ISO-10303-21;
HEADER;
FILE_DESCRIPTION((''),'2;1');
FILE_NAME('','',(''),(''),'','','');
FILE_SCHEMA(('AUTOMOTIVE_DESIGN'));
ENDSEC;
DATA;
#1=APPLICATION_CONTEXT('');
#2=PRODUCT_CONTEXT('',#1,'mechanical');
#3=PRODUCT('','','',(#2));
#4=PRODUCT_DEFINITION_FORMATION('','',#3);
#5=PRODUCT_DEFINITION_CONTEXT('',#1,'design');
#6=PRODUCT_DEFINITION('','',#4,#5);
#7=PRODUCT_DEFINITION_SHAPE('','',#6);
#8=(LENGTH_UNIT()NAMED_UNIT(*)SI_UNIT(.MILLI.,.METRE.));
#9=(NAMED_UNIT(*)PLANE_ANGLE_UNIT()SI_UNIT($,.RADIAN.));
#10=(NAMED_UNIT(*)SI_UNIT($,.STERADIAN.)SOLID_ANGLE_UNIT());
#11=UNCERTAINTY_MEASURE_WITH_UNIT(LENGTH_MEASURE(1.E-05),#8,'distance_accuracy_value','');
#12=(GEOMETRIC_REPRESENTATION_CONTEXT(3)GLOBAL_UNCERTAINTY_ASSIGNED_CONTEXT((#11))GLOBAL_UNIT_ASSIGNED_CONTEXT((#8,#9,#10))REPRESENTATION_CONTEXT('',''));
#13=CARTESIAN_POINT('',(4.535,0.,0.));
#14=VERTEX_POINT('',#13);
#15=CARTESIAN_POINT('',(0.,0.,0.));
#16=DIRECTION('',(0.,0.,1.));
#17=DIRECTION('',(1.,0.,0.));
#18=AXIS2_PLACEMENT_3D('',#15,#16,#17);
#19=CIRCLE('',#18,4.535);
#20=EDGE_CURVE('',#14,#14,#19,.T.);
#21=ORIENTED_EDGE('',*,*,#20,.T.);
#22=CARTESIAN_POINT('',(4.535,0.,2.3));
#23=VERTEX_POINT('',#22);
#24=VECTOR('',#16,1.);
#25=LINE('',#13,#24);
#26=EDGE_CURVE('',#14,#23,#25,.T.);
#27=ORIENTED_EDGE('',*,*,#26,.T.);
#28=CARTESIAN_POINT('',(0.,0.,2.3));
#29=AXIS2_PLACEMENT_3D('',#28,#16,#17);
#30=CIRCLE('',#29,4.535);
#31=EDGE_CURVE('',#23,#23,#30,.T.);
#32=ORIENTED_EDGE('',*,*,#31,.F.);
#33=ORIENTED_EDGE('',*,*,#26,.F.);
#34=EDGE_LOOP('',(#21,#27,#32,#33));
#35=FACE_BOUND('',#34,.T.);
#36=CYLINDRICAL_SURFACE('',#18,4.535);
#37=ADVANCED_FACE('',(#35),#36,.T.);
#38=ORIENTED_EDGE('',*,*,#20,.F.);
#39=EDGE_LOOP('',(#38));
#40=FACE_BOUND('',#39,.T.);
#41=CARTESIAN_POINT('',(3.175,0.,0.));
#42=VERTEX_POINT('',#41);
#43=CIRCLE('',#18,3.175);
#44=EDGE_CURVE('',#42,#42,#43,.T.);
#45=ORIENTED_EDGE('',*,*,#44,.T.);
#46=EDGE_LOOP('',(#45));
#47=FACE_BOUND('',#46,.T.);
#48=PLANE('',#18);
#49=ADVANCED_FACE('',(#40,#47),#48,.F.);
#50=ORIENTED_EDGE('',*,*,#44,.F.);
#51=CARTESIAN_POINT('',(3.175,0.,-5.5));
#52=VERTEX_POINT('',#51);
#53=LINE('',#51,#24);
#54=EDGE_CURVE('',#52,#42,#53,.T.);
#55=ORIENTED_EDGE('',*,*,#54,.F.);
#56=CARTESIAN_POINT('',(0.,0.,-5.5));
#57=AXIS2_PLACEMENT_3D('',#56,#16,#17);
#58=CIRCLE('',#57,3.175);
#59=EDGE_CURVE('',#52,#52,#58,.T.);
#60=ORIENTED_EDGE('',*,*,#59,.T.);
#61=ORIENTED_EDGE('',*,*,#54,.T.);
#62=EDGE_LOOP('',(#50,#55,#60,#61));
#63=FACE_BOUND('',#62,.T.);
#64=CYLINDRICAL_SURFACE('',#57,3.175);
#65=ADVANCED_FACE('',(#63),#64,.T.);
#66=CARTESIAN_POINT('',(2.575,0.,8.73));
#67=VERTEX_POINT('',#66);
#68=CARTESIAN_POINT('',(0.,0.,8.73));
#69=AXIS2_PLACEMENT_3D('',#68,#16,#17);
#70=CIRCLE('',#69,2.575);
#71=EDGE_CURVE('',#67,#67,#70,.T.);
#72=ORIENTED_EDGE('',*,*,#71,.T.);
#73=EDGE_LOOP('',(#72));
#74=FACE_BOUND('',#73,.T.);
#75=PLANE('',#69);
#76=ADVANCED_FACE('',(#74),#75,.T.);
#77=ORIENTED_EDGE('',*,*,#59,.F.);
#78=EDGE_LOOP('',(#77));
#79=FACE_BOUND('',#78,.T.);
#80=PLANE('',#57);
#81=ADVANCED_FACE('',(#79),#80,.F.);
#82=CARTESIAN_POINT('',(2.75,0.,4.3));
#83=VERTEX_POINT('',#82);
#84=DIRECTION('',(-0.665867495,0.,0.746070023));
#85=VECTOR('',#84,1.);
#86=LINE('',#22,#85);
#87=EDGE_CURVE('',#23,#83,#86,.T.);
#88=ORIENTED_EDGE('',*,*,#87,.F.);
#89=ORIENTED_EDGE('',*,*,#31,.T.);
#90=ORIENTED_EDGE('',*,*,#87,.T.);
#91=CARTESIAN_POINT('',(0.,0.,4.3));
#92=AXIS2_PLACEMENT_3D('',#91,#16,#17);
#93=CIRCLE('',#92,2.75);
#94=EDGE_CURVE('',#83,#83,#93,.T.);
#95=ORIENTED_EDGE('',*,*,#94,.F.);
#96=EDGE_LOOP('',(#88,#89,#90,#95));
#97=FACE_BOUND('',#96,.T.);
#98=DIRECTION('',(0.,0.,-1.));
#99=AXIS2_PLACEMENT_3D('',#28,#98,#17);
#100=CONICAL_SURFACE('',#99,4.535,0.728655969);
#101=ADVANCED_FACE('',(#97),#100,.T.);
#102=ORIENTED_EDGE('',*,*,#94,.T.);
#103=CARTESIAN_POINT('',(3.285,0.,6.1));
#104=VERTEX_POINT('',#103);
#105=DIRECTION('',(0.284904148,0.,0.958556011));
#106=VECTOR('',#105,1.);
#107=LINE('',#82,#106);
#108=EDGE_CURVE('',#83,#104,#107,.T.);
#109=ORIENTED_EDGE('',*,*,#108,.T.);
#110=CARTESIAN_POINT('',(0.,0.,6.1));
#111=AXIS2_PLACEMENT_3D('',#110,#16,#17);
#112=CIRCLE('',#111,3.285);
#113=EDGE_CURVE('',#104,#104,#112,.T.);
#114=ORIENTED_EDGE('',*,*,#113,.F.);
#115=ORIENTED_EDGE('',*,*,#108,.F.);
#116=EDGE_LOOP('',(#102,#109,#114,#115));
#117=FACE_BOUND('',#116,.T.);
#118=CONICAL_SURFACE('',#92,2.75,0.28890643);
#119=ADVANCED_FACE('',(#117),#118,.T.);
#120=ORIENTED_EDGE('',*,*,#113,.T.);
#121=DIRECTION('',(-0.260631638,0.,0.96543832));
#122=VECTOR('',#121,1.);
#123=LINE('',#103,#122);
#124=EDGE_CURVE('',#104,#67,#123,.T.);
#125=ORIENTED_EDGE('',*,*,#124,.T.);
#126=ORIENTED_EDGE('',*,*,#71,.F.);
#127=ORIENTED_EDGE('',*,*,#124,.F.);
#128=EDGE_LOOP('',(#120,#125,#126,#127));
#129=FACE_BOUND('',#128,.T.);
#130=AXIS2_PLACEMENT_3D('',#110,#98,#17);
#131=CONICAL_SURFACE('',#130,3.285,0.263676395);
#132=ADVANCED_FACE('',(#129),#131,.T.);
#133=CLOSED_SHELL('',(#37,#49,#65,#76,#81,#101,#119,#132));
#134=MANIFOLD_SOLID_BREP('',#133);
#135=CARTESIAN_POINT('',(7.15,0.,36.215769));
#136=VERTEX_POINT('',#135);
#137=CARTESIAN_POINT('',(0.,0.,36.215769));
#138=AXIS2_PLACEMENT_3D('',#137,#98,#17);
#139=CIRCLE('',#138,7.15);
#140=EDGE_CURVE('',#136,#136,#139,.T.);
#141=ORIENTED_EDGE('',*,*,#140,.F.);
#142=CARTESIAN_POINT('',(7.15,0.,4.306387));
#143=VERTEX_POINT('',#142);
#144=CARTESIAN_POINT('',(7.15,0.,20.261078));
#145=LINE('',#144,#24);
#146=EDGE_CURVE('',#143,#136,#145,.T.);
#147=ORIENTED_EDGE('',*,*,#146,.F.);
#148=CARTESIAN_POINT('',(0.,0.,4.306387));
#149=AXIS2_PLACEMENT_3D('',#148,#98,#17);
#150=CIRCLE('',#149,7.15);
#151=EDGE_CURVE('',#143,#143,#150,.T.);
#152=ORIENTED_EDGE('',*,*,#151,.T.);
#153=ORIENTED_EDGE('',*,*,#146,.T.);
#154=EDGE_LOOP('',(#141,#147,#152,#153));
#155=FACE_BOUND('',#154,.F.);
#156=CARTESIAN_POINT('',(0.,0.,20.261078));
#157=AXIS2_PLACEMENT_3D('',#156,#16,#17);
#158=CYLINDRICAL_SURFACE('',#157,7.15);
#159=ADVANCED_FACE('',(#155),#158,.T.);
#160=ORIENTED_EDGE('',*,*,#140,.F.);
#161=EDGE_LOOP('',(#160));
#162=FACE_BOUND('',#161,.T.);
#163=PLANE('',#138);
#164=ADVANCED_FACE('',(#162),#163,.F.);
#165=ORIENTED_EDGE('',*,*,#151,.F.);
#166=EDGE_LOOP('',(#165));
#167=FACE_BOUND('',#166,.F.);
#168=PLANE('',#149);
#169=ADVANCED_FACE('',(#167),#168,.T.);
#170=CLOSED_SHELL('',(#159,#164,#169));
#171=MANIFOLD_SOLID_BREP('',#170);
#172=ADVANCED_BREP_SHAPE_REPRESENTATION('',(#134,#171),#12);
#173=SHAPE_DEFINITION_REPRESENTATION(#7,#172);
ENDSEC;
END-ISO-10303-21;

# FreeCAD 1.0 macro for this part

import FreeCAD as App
import Part
import Sketcher

doc = App.newDocument("Part")
body = doc.addObject("PartDesign::Body", "Body")

sketch1 = body.newObject("Sketcher::SketchObject", "Sketch")
sketch1.AttachmentSupport = (doc.getObject("XZ_Plane"), [""])
sketch1.MapMode = "FlatFace"
sketch1.addGeometry([
    Part.LineSegment(App.Vector(2.575, 8.73, 0), App.Vector(0, 8.73, 0)),
    Part.LineSegment(App.Vector(0, 8.73, 0), App.Vector(0, -5.5, 0)),
    Part.LineSegment(App.Vector(0, -5.5, 0), App.Vector(3.175, -5.5, 0)),
    Part.LineSegment(App.Vector(3.175, -5.5, 0), App.Vector(3.175, 0, 0)),
    Part.LineSegment(App.Vector(3.175, 0, 0), App.Vector(4.535, 0, 0)),
    Part.LineSegment(App.Vector(4.535, 0, 0), App.Vector(4.535, 2.3, 0)),
    Part.LineSegment(App.Vector(4.535, 2.3, 0), App.Vector(2.75, 4.3, 0)),
    Part.LineSegment(App.Vector(2.75, 4.3, 0), App.Vector(3.285, 6.1, 0)),
    Part.LineSegment(App.Vector(3.285, 6.1, 0), App.Vector(2.575, 8.73, 0)),
], False)
sketch1.addConstraint([
    Sketcher.Constraint("Coincident", 0, 2, 1, 1),
    Sketcher.Constraint("Coincident", 1, 2, 2, 1),
    Sketcher.Constraint("Coincident", 2, 2, 3, 1),
    Sketcher.Constraint("Coincident", 3, 2, 4, 1),
    Sketcher.Constraint("Coincident", 4, 2, 5, 1),
    Sketcher.Constraint("Coincident", 5, 2, 6, 1),
    Sketcher.Constraint("Coincident", 6, 2, 7, 1),
    Sketcher.Constraint("Coincident", 7, 2, 8, 1),
    Sketcher.Constraint("Coincident", 8, 2, 0, 1),
    Sketcher.Constraint("Horizontal", 0),
    Sketcher.Constraint("Vertical", 1),
    Sketcher.Constraint("Horizontal", 2),
    Sketcher.Constraint("Vertical", 3),
    Sketcher.Constraint("Horizontal", 4),
    Sketcher.Constraint("Vertical", 5),
    Sketcher.Constraint("PointOnObject", 0, 2, -2),
    Sketcher.Constraint("PointOnObject", 3, 2, -1),
    Sketcher.Constraint("DistanceY", 3, 1, 3, 2, 5.5),
    Sketcher.Constraint("DistanceY", 5, 1, 5, 2, 2.3),
    Sketcher.Constraint("DistanceY", 5, 2, 6, 2, 2.0),
    Sketcher.Constraint("DistanceX", 4, 1, 4, 2, 1.36),
    Sketcher.Constraint("DistanceY", 1, 2, 1, 1, 14.23),
    Sketcher.Constraint("DistanceY", -1, 1, 7, 2, 6.1),
    Sketcher.Constraint("DistanceX", 8, 2, 3, 2, 0.6),
    Sketcher.Constraint("DistanceX", 0, 2, 0, 1, 2.575),
    Sketcher.Constraint("DistanceX", -1, 1, 6, 2, 2.75),
    Sketcher.Constraint("DistanceX", 7, 2, 5, 2, 1.25),
])
revolution = body.newObject("PartDesign::Revolution", "Revolution")
revolution.Profile = sketch1
revolution.ReferenceAxis = (sketch1, ["V_Axis"])
revolution.Angle = 360
body2 = doc.addObject("PartDesign::Body", "Body001")

sketch2 = body2.newObject("Sketcher::SketchObject", "Sketch001")
sketch2.AttachmentSupport = (doc.getObject("XZ_Plane001"), [""])
sketch2.MapMode = "FlatFace"
sketch2.addGeometry([
    Part.LineSegment(App.Vector(0, 36.215769, 0), App.Vector(0, 4.306387, 0)),
    Part.LineSegment(App.Vector(0, 4.306387, 0), App.Vector(7.15, 4.306387, 0)),
    Part.LineSegment(App.Vector(7.15, 4.306387, 0), App.Vector(7.15, 36.215769, 0)),
    Part.LineSegment(App.Vector(7.15, 36.215769, 0), App.Vector(0, 36.215769, 0)),
], False)
sketch2.addConstraint([
    Sketcher.Constraint("Coincident", 0, 2, 1, 1),
    Sketcher.Constraint("Coincident", 1, 2, 2, 1),
    Sketcher.Constraint("Coincident", 2, 2, 3, 1),
    Sketcher.Constraint("Coincident", 3, 2, 0, 1),
    Sketcher.Constraint("Vertical", 0),
    Sketcher.Constraint("Horizontal", 1),
    Sketcher.Constraint("Vertical", 2),
    Sketcher.Constraint("Horizontal", 3),
    Sketcher.Constraint("PointOnObject", 0, 2, -2),
    Sketcher.Constraint("DistanceX", 1, 1, 1, 2, 7.15),
    Sketcher.Constraint("DistanceY", 0, 2, 0, 1, 31.909382),
    Sketcher.Constraint("DistanceY", -1, 1, 2, 2, 36.215769),
])
revolution2 = body2.newObject("PartDesign::Revolution", "Revolution001")
revolution2.Profile = sketch2
revolution2.ReferenceAxis = (sketch2, ["V_Axis"])
revolution2.Angle = 360

doc.recompute()
